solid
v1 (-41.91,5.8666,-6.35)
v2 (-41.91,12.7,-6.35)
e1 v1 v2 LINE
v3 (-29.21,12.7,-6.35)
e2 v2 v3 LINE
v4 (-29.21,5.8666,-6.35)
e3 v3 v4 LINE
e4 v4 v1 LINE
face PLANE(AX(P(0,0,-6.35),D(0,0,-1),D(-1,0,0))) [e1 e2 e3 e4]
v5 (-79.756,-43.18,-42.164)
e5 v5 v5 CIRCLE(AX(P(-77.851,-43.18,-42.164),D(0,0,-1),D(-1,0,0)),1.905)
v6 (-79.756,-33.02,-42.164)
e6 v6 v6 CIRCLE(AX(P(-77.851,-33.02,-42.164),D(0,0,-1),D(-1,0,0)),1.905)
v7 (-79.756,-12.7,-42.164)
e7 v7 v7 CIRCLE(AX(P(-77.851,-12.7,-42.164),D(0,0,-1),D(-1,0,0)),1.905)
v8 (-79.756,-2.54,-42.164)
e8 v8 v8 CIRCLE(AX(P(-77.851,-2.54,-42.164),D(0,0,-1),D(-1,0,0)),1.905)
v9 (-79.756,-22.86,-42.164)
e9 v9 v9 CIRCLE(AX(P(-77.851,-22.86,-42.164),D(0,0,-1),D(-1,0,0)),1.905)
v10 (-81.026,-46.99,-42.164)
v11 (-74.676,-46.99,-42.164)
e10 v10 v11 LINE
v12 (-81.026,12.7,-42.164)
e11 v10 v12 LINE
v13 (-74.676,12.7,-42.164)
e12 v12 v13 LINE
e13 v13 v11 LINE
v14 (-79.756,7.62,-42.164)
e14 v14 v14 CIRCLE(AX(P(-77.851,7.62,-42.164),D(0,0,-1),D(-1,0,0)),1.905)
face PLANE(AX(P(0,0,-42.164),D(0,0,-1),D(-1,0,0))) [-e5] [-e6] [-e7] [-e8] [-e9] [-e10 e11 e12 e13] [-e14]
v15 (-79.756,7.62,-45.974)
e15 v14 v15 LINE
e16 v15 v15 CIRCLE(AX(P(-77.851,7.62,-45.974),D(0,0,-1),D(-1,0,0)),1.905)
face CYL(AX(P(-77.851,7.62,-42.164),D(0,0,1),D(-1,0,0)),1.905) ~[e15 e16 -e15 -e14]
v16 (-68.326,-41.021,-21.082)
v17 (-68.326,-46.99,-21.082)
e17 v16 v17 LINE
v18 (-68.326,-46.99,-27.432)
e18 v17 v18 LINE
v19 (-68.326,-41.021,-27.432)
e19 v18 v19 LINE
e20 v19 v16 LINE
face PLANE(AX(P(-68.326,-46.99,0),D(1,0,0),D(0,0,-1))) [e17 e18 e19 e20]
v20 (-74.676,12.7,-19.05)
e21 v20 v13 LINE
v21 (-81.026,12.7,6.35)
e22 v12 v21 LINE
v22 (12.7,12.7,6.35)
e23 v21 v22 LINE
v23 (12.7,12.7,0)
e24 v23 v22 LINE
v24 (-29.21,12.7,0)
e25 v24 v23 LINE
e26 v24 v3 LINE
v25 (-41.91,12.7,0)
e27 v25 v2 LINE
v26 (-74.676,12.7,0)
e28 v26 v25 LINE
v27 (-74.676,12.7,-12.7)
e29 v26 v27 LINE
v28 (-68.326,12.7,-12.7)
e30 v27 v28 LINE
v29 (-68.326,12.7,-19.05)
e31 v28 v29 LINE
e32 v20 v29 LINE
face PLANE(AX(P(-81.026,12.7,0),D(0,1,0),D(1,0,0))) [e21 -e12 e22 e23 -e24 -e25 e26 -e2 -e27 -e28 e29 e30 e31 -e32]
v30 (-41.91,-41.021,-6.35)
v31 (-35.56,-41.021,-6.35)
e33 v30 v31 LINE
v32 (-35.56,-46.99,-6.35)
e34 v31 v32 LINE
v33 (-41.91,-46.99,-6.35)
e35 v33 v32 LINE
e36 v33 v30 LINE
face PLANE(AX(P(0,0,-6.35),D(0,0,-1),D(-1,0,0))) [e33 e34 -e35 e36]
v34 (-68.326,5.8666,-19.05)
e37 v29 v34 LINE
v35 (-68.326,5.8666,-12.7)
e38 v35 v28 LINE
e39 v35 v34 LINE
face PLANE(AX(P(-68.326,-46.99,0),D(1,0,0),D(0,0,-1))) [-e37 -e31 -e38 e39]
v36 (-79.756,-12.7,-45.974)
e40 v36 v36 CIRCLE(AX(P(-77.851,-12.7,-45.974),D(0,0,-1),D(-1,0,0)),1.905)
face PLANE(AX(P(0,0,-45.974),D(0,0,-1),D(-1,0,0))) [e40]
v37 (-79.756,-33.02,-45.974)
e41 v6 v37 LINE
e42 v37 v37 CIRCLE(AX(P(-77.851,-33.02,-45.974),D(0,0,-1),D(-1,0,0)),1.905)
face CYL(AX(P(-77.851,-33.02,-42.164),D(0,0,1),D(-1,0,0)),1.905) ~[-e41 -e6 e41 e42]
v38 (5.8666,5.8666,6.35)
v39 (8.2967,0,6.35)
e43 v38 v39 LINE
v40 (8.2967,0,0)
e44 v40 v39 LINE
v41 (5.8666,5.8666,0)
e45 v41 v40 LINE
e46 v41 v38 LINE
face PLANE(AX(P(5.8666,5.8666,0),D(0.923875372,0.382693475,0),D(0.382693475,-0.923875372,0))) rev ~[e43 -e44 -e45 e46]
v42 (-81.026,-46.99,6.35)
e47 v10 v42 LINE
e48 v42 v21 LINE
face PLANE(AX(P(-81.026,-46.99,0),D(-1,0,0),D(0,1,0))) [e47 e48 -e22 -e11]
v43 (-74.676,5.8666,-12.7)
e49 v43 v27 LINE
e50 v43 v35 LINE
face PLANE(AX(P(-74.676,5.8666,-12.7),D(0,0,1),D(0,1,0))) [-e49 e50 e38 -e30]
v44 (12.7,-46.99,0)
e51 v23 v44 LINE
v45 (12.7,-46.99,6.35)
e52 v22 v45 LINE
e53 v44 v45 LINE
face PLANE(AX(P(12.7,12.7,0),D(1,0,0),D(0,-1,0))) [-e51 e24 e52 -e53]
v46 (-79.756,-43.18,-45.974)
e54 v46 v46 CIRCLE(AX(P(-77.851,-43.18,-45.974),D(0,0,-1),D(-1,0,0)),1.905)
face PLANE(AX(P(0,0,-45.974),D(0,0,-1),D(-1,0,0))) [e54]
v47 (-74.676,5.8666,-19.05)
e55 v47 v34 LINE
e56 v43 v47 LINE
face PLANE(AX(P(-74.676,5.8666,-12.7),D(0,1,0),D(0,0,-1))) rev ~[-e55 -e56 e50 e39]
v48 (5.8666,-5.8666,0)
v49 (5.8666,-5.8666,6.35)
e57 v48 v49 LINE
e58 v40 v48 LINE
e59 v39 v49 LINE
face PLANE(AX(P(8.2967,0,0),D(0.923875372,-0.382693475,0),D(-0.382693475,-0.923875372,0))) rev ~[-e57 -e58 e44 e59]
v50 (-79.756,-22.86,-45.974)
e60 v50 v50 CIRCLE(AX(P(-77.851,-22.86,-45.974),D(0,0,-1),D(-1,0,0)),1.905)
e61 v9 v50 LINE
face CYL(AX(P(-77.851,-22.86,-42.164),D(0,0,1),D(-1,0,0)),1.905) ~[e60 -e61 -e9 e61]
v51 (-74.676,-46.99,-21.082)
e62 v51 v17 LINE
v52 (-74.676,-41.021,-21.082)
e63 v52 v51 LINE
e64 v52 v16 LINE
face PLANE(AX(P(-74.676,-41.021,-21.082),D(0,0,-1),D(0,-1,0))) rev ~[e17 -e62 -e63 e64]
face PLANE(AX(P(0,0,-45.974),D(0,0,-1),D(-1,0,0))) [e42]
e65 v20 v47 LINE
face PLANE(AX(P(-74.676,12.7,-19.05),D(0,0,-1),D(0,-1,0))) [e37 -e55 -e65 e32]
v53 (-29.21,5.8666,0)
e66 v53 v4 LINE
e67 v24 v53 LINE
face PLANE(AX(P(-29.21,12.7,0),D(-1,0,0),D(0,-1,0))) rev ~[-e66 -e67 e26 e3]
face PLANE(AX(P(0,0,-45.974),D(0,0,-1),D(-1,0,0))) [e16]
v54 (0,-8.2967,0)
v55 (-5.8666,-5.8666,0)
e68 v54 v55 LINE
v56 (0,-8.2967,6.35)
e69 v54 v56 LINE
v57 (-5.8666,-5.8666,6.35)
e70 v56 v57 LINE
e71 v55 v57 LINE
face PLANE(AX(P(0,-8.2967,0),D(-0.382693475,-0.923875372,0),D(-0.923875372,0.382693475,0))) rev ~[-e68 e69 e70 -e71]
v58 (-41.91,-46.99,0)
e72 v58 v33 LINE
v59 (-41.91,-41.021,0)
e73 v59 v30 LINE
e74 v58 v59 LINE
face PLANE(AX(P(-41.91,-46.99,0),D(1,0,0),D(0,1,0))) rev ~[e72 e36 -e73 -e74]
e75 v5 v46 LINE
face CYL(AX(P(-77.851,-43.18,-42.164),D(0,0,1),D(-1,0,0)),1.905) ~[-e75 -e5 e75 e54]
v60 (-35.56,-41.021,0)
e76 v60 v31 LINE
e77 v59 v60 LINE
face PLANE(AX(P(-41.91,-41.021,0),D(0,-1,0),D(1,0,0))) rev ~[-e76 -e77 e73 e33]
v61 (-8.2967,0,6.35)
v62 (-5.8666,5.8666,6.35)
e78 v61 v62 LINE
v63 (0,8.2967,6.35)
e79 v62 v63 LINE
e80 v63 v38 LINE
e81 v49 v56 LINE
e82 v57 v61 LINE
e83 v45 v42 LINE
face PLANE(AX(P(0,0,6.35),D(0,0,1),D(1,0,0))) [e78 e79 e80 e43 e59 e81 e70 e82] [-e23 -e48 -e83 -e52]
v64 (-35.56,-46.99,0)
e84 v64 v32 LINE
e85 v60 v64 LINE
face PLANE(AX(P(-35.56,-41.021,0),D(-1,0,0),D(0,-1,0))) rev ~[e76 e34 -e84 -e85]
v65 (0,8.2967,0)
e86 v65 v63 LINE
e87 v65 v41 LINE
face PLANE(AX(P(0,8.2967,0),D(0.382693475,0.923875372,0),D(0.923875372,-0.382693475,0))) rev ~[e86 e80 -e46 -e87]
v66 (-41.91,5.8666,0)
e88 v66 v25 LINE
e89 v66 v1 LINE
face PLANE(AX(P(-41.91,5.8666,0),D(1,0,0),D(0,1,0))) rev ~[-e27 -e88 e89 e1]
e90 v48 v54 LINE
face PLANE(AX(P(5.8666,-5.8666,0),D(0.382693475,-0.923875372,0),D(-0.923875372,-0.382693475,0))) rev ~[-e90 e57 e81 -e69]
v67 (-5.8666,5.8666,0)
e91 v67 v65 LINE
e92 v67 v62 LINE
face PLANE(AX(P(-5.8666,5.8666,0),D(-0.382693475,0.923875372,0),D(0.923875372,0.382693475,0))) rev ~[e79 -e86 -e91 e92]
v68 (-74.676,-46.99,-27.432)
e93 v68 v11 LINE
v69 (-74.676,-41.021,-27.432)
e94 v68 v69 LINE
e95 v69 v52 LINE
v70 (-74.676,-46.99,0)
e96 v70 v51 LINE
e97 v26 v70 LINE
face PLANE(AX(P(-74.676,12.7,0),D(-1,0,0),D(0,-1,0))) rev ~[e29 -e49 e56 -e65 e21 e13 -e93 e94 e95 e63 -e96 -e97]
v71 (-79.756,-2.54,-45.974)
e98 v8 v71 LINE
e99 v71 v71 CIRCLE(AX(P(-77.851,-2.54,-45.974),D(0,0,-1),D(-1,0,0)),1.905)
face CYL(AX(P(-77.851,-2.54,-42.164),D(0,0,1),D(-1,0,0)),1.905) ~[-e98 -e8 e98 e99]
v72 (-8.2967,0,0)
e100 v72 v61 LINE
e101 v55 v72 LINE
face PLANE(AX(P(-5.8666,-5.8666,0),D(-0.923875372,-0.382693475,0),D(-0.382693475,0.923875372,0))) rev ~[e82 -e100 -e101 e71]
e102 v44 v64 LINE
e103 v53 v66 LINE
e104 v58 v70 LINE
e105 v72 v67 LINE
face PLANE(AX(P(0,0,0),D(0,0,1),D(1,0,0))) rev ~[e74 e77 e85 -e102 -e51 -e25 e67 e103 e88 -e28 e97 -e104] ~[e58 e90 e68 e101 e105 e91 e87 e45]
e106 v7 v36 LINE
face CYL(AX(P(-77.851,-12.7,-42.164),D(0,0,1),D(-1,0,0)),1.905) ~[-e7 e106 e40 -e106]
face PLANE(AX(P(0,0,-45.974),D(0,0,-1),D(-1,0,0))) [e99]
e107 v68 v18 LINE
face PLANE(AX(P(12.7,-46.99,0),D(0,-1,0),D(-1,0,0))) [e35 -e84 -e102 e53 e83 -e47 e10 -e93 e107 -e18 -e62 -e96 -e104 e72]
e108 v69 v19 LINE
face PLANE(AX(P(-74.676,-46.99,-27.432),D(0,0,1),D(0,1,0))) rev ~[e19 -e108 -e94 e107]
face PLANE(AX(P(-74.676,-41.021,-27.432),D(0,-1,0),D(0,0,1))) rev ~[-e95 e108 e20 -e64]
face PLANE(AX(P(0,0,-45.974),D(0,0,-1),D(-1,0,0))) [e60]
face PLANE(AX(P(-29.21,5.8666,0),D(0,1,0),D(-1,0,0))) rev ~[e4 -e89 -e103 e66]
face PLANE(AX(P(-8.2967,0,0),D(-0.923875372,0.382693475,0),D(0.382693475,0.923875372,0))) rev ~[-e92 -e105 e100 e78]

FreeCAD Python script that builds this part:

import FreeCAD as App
import Part
import Sketcher

V = App.Vector
Q = App.Units.Quantity

doc = App.newDocument("Part")
params = doc.addObject("Spreadsheet::Sheet", "Params")
for row, (alias, value) in enumerate([
    ("sketch1_width", "3.69 in"),
    ("sketch1_height", "2.35 in"),
    ("sketch1_length", "0.25 in"),
    ("pad1_length", "0.25 in"),
    ("sketch2_width", "0.25 in"),
    ("sketch2_height", "2.35 in"),
    ("pad2_length", "1.66 in"),
    ("sketch3_diameter", "0.15 in"),
    ("pad3_length", "0.15 in"),
    ("sketch4_width", "0.5 in"),
    ("sketch4_width2", "0.25 in"),
    ("sketch4_height", "0.235 in"),
    ("pad4_length", "0.25 in"),
    ("sketch5_height", "0.25 in"),
    ("sketch5_width", "0.235 in"),
    ("pad5_length", "0.25 in"),
], start=1):
    params.set(f"A{row}", alias)
    params.set(f"B{row}", "=" + value)
    params.setAlias(f"B{row}", alias)

body = doc.addObject("PartDesign::Body", "Body")

sketch1 = body.newObject("Sketcher::SketchObject", "Sketch")
sketch1.AttachmentSupport = (doc.getObject("XY_Plane"), [""])
sketch1.MapMode = "FlatFace"
sketch1.addGeometry(Part.LineSegment(V(13, 13, 0), V(-81, 13, 0)), False)
sketch1.addGeometry(Part.LineSegment(V(-81, 13, 0), V(-81, -47, 0)), False)
sketch1.addGeometry(Part.LineSegment(V(-81, -47, 0), V(13, -47, 0)), False)
sketch1.addGeometry(Part.LineSegment(V(13, -47, 0), V(13, 13, 0)), False)
sketch1.addGeometry(Part.LineSegment(V(-6, 6, 0), V(0, 8, 0)), False)
sketch1.addGeometry(Part.LineSegment(V(0, 8, 0), V(6, 6, 0)), False)
sketch1.addGeometry(Part.LineSegment(V(6, 6, 0), V(8, 0, 0)), False)
sketch1.addGeometry(Part.LineSegment(V(8, 0, 0), V(6, -6, 0)), False)
sketch1.addGeometry(Part.LineSegment(V(6, -6, 0), V(0, -8, 0)), False)
sketch1.addGeometry(Part.LineSegment(V(0, -8, 0), V(-6, -6, 0)), False)
sketch1.addGeometry(Part.LineSegment(V(-6, -6, 0), V(-8, 0, 0)), False)
sketch1.addGeometry(Part.LineSegment(V(-8, 0, 0), V(-6, 6, 0)), False)
sketch1.addConstraint(Sketcher.Constraint("Coincident", 0, 2, 1, 1))
sketch1.addConstraint(Sketcher.Constraint("Coincident", 1, 2, 2, 1))
sketch1.addConstraint(Sketcher.Constraint("Coincident", 2, 2, 3, 1))
sketch1.addConstraint(Sketcher.Constraint("Coincident", 3, 2, 0, 1))
sketch1.addConstraint(Sketcher.Constraint("Coincident", 4, 2, 5, 1))
sketch1.addConstraint(Sketcher.Constraint("Coincident", 5, 2, 6, 1))
sketch1.addConstraint(Sketcher.Constraint("Coincident", 6, 2, 7, 1))
sketch1.addConstraint(Sketcher.Constraint("Coincident", 7, 2, 8, 1))
sketch1.addConstraint(Sketcher.Constraint("Coincident", 8, 2, 9, 1))
sketch1.addConstraint(Sketcher.Constraint("Coincident", 9, 2, 10, 1))
sketch1.addConstraint(Sketcher.Constraint("Coincident", 10, 2, 11, 1))
sketch1.addConstraint(Sketcher.Constraint("Coincident", 11, 2, 4, 1))
sketch1.addConstraint(Sketcher.Constraint("Horizontal", 0))
sketch1.addConstraint(Sketcher.Constraint("Vertical", 1))
sketch1.addConstraint(Sketcher.Constraint("Horizontal", 2))
sketch1.addConstraint(Sketcher.Constraint("Vertical", 3))
sketch1.addConstraint(Sketcher.Constraint("Symmetric", 4, 2, 8, 2, -1, 1))
sketch1.addConstraint(Sketcher.Constraint("Symmetric", 5, 2, 9, 2, -1, 1))
sketch1.addConstraint(Sketcher.Constraint("Symmetric", 6, 2, 10, 2, -1, 1))
sketch1.addConstraint(Sketcher.Constraint("Symmetric", 7, 2, 11, 2, -1, 1))
sketch1.addConstraint(Sketcher.Constraint("Symmetric", 7, 2, 9, 2, -2))
sketch1.addConstraint(Sketcher.Constraint("PointOnObject", 4, 2, -2))
sketch1.addConstraint(Sketcher.Constraint("PointOnObject", 6, 2, -1))
sketch1.addConstraint(Sketcher.Constraint("Perpendicular", 4, 6))
sketch1.addConstraint(Sketcher.Constraint("Equal", 5, 6))
sketch1.addConstraint(Sketcher.Constraint("DistanceX", 0, 2, 0, 1, Q("3.69 in")))
sketch1.addConstraint(Sketcher.Constraint("DistanceY", 1, 2, 1, 1, Q("2.35 in")))
sketch1.addConstraint(Sketcher.Constraint("DistanceY", -1, 1, 0, 2, Q("0.5 in")))
sketch1.addConstraint(Sketcher.Constraint("DistanceX", -1, 1, 2, 2, Q("0.5 in")))
sketch1.addConstraint(Sketcher.Constraint("Distance", 4, Q("0.25 in")))
sketch1.addConstraint(Sketcher.Constraint("Angle", 4, Q("22.5006 deg")))
sketch1.setExpression("Constraints[25]", "Params.sketch1_width")
sketch1.setExpression("Constraints[26]", "Params.sketch1_height")
sketch1.setExpression("Constraints[29]", "Params.sketch1_length")
pad1 = body.newObject("PartDesign::Pad", "Pad")
pad1.Profile = sketch1
pad1.setExpression("Length", "Params.pad1_length")

sketch2 = body.newObject("Sketcher::SketchObject", "Sketch001")
sketch2.AttachmentSupport = (doc.getObject("XY_Plane"), [""])
sketch2.MapMode = "FlatFace"
sketch2.addGeometry(Part.LineSegment(V(-75, -47, 0), V(-81, -47, 0)), False)
sketch2.addGeometry(Part.LineSegment(V(-81, -47, 0), V(-81, 13, 0)), False)
sketch2.addGeometry(Part.LineSegment(V(-81, 13, 0), V(-75, 13, 0)), False)
sketch2.addGeometry(Part.LineSegment(V(-75, 13, 0), V(-75, -47, 0)), False)
sketch2.addConstraint(Sketcher.Constraint("Coincident", 0, 2, 1, 1))
sketch2.addConstraint(Sketcher.Constraint("Coincident", 1, 2, 2, 1))
sketch2.addConstraint(Sketcher.Constraint("Coincident", 2, 2, 3, 1))
sketch2.addConstraint(Sketcher.Constraint("Coincident", 3, 2, 0, 1))
sketch2.addConstraint(Sketcher.Constraint("Horizontal", 0))
sketch2.addConstraint(Sketcher.Constraint("Vertical", 1))
sketch2.addConstraint(Sketcher.Constraint("Horizontal", 2))
sketch2.addConstraint(Sketcher.Constraint("Vertical", 3))
sketch2.addConstraint(Sketcher.Constraint("DistanceX", 0, 2, 0, 1, Q("0.25 in")))
sketch2.addConstraint(Sketcher.Constraint("DistanceY", 1, 1, 1, 2, Q("2.35 in")))
sketch2.addConstraint(Sketcher.Constraint("DistanceY", -1, 1, 1, 2, Q("0.5 in")))
sketch2.addConstraint(Sketcher.Constraint("DistanceX", 0, 2, -1, 1, Q("3.19 in")))
sketch2.setExpression("Constraints[8]", "Params.sketch2_width")
sketch2.setExpression("Constraints[9]", "Params.sketch2_height")
pad2 = body.newObject("PartDesign::Pad", "Pad001")
pad2.Profile = sketch2
pad2.setExpression("Length", "Params.pad2_length")
pad2.Reversed = True

sketch3 = body.newObject("Sketcher::SketchObject", "Sketch002")
sketch3.AttachmentSupport = (doc.getObject("XY_Plane"), [""])
sketch3.MapMode = "FlatFace"
sketch3.AttachmentOffset = App.Placement(V(0, 0, -1.66 * 25.4), App.Rotation())
sketch3.addGeometry(Part.Circle(V(-77.9, 7.6, 0), V(0, 0, 1), 1.9), False)
sketch3.addGeometry(Part.Circle(V(-77.9, -2.5, 0), V(0, 0, 1), 1.9), False)
sketch3.addGeometry(Part.Circle(V(-77.9, -12.7, 0), V(0, 0, 1), 1.9), False)
sketch3.addGeometry(Part.Circle(V(-77.9, -22.9, 0), V(0, 0, 1), 1.9), False)
sketch3.addGeometry(Part.Circle(V(-77.9, -33, 0), V(0, 0, 1), 1.9), False)
sketch3.addGeometry(Part.Circle(V(-77.9, -43.2, 0), V(0, 0, 1), 1.9), False)
sketch3.addConstraint(Sketcher.Constraint("Equal", 0, 1))
sketch3.addConstraint(Sketcher.Constraint("Equal", 1, 2))
sketch3.addConstraint(Sketcher.Constraint("Equal", 2, 3))
sketch3.addConstraint(Sketcher.Constraint("Equal", 3, 4))
sketch3.addConstraint(Sketcher.Constraint("Equal", 4, 5))
sketch3.addConstraint(Sketcher.Constraint("Vertical", 0, 3, 1, 3))
sketch3.addConstraint(Sketcher.Constraint("Vertical", 1, 3, 2, 3))
sketch3.addConstraint(Sketcher.Constraint("Vertical", 2, 3, 3, 3))
sketch3.addConstraint(Sketcher.Constraint("Vertical", 3, 3, 4, 3))
sketch3.addConstraint(Sketcher.Constraint("Vertical", 4, 3, 5, 3))
sketch3.addConstraint(Sketcher.Constraint("Diameter", 0, Q("0.15 in")))
sketch3.addConstraint(Sketcher.Constraint("DistanceY", 1, 3, 0, 3, Q("0.4 in")))
sketch3.addConstraint(Sketcher.Constraint("DistanceY", 2, 3, 1, 3, Q("0.4 in")))
sketch3.addConstraint(Sketcher.Constraint("DistanceY", 3, 3, 2, 3, Q("0.4 in")))
sketch3.addConstraint(Sketcher.Constraint("DistanceY", 4, 3, 3, 3, Q("0.4 in")))
sketch3.addConstraint(Sketcher.Constraint("DistanceY", 5, 3, 4, 3, Q("0.4 in")))
sketch3.addConstraint(Sketcher.Constraint("DistanceY", -1, 1, 0, 3, Q("0.3 in")))
sketch3.addConstraint(Sketcher.Constraint("DistanceX", 0, 3, -1, 1, Q("3.065 in")))
sketch3.setExpression("Constraints[10]", "Params.sketch3_diameter")
pad3 = body.newObject("PartDesign::Pad", "Pad002")
pad3.Profile = sketch3
pad3.setExpression("Length", "Params.pad3_length")
pad3.Reversed = True

sketch4 = body.newObject("Sketcher::SketchObject", "Sketch003")
sketch4.AttachmentSupport = (doc.getObject("XY_Plane"), [""])
sketch4.MapMode = "FlatFace"
sketch4.addGeometry(Part.LineSegment(V(-29, 13, 0), V(-29, 6, 0)), False)
sketch4.addGeometry(Part.LineSegment(V(-29, 6, 0), V(-42, 6, 0)), False)
sketch4.addGeometry(Part.LineSegment(V(-42, 6, 0), V(-42, 13, 0)), False)
sketch4.addGeometry(Part.LineSegment(V(-42, 13, 0), V(-29, 13, 0)), False)
sketch4.addGeometry(Part.LineSegment(V(-36, -41, 0), V(-36, -47, 0)), False)
sketch4.addGeometry(Part.LineSegment(V(-36, -47, 0), V(-42, -47, 0)), False)
sketch4.addGeometry(Part.LineSegment(V(-42, -47, 0), V(-42, -41, 0)), False)
sketch4.addGeometry(Part.LineSegment(V(-42, -41, 0), V(-36, -41, 0)), False)
sketch4.addConstraint(Sketcher.Constraint("Coincident", 0, 2, 1, 1))
sketch4.addConstraint(Sketcher.Constraint("Coincident", 1, 2, 2, 1))
sketch4.addConstraint(Sketcher.Constraint("Coincident", 2, 2, 3, 1))
sketch4.addConstraint(Sketcher.Constraint("Coincident", 3, 2, 0, 1))
sketch4.addConstraint(Sketcher.Constraint("Coincident", 4, 2, 5, 1))
sketch4.addConstraint(Sketcher.Constraint("Coincident", 5, 2, 6, 1))
sketch4.addConstraint(Sketcher.Constraint("Coincident", 6, 2, 7, 1))
sketch4.addConstraint(Sketcher.Constraint("Coincident", 7, 2, 4, 1))
sketch4.addConstraint(Sketcher.Constraint("Vertical", 0))
sketch4.addConstraint(Sketcher.Constraint("Horizontal", 1))
sketch4.addConstraint(Sketcher.Constraint("Vertical", 2))
sketch4.addConstraint(Sketcher.Constraint("Horizontal", 3))
sketch4.addConstraint(Sketcher.Constraint("Vertical", 4))
sketch4.addConstraint(Sketcher.Constraint("Horizontal", 5))
sketch4.addConstraint(Sketcher.Constraint("Vertical", 6))
sketch4.addConstraint(Sketcher.Constraint("Horizontal", 7))
sketch4.addConstraint(Sketcher.Constraint("Vertical", 2, 2, 5, 2))
sketch4.addConstraint(Sketcher.Constraint("DistanceX", 1, 2, 1, 1, Q("0.5 in")))
sketch4.addConstraint(Sketcher.Constraint("DistanceX", 5, 2, 5, 1, Q("0.25 in")))
sketch4.addConstraint(Sketcher.Constraint("DistanceY", -1, 1, 2, 2, Q("0.5 in")))
sketch4.addConstraint(Sketcher.Constraint("DistanceY", 4, 2, 4, 1, Q("0.235 in")))
sketch4.addConstraint(Sketcher.Constraint("DistanceX", 1, 2, -1, 1, Q("1.65 in")))
sketch4.addConstraint(Sketcher.Constraint("DistanceY", 4, 2, -1, 1, Q("1.85 in")))
sketch4.addConstraint(Sketcher.Constraint("DistanceY", 0, 2, 0, 1, 6.8334))
sketch4.setExpression("Constraints[17]", "Params.sketch4_width")
sketch4.setExpression("Constraints[18]", "Params.sketch4_width2")
sketch4.setExpression("Constraints[20]", "Params.sketch4_height")
pad4 = body.newObject("PartDesign::Pad", "Pad003")
pad4.Profile = sketch4
pad4.setExpression("Length", "Params.pad4_length")
pad4.Reversed = True

sketch5 = body.newObject("Sketcher::SketchObject", "Sketch004")
sketch5.AttachmentSupport = (doc.getObject("YZ_Plane"), [""])
sketch5.MapMode = "FlatFace"
sketch5.AttachmentOffset = App.Placement(V(0, 0, -2.94 * 25.4), App.Rotation())
sketch5.addGeometry(Part.LineSegment(V(13, -13, 0), V(6, -13, 0)), False)
sketch5.addGeometry(Part.LineSegment(V(6, -13, 0), V(6, -19, 0)), False)
sketch5.addGeometry(Part.LineSegment(V(6, -19, 0), V(13, -19, 0)), False)
sketch5.addGeometry(Part.LineSegment(V(13, -19, 0), V(13, -13, 0)), False)
sketch5.addGeometry(Part.LineSegment(V(-41, -21, 0), V(-47, -21, 0)), False)
sketch5.addGeometry(Part.LineSegment(V(-47, -21, 0), V(-47, -27, 0)), False)
sketch5.addGeometry(Part.LineSegment(V(-47, -27, 0), V(-41, -27, 0)), False)
sketch5.addGeometry(Part.LineSegment(V(-41, -27, 0), V(-41, -21, 0)), False)
sketch5.addConstraint(Sketcher.Constraint("Coincident", 0, 2, 1, 1))
sketch5.addConstraint(Sketcher.Constraint("Coincident", 1, 2, 2, 1))
sketch5.addConstraint(Sketcher.Constraint("Coincident", 2, 2, 3, 1))
sketch5.addConstraint(Sketcher.Constraint("Coincident", 3, 2, 0, 1))
sketch5.addConstraint(Sketcher.Constraint("Coincident", 4, 2, 5, 1))
sketch5.addConstraint(Sketcher.Constraint("Coincident", 5, 2, 6, 1))
sketch5.addConstraint(Sketcher.Constraint("Coincident", 6, 2, 7, 1))
sketch5.addConstraint(Sketcher.Constraint("Coincident", 7, 2, 4, 1))
sketch5.addConstraint(Sketcher.Constraint("Horizontal", 0))
sketch5.addConstraint(Sketcher.Constraint("Vertical", 1))
sketch5.addConstraint(Sketcher.Constraint("Horizontal", 2))
sketch5.addConstraint(Sketcher.Constraint("Vertical", 3))
sketch5.addConstraint(Sketcher.Constraint("Horizontal", 4))
sketch5.addConstraint(Sketcher.Constraint("Vertical", 5))
sketch5.addConstraint(Sketcher.Constraint("Horizontal", 6))
sketch5.addConstraint(Sketcher.Constraint("Vertical", 7))
sketch5.addConstraint(Sketcher.Constraint("Equal", 3, 5))
sketch5.addConstraint(Sketcher.Constraint("DistanceY", 1, 2, 1, 1, Q("0.25 in")))
sketch5.addConstraint(Sketcher.Constraint("DistanceX", 4, 2, 4, 1, Q("0.235 in")))
sketch5.addConstraint(Sketcher.Constraint("DistanceY", 1, 2, -1, 1, Q("0.75 in")))
sketch5.addConstraint(Sketcher.Constraint("DistanceX", 0, 2, 0, 1, 6.8334))
sketch5.addConstraint(Sketcher.Constraint("DistanceX", -1, 1, 2, 2, Q("0.5 in")))
sketch5.addConstraint(Sketcher.Constraint("DistanceX", 4, 2, -1, 1, Q("1.85 in")))
sketch5.addConstraint(Sketcher.Constraint("DistanceY", 4, 2, -1, 1, Q("0.83 in")))
sketch5.setExpression("Constraints[17]", "Params.sketch5_height")
sketch5.setExpression("Constraints[18]", "Params.sketch5_width")
pad5 = body.newObject("PartDesign::Pad", "Pad004")
pad5.Profile = sketch5
pad5.setExpression("Length", "Params.pad5_length")

doc.recompute()
